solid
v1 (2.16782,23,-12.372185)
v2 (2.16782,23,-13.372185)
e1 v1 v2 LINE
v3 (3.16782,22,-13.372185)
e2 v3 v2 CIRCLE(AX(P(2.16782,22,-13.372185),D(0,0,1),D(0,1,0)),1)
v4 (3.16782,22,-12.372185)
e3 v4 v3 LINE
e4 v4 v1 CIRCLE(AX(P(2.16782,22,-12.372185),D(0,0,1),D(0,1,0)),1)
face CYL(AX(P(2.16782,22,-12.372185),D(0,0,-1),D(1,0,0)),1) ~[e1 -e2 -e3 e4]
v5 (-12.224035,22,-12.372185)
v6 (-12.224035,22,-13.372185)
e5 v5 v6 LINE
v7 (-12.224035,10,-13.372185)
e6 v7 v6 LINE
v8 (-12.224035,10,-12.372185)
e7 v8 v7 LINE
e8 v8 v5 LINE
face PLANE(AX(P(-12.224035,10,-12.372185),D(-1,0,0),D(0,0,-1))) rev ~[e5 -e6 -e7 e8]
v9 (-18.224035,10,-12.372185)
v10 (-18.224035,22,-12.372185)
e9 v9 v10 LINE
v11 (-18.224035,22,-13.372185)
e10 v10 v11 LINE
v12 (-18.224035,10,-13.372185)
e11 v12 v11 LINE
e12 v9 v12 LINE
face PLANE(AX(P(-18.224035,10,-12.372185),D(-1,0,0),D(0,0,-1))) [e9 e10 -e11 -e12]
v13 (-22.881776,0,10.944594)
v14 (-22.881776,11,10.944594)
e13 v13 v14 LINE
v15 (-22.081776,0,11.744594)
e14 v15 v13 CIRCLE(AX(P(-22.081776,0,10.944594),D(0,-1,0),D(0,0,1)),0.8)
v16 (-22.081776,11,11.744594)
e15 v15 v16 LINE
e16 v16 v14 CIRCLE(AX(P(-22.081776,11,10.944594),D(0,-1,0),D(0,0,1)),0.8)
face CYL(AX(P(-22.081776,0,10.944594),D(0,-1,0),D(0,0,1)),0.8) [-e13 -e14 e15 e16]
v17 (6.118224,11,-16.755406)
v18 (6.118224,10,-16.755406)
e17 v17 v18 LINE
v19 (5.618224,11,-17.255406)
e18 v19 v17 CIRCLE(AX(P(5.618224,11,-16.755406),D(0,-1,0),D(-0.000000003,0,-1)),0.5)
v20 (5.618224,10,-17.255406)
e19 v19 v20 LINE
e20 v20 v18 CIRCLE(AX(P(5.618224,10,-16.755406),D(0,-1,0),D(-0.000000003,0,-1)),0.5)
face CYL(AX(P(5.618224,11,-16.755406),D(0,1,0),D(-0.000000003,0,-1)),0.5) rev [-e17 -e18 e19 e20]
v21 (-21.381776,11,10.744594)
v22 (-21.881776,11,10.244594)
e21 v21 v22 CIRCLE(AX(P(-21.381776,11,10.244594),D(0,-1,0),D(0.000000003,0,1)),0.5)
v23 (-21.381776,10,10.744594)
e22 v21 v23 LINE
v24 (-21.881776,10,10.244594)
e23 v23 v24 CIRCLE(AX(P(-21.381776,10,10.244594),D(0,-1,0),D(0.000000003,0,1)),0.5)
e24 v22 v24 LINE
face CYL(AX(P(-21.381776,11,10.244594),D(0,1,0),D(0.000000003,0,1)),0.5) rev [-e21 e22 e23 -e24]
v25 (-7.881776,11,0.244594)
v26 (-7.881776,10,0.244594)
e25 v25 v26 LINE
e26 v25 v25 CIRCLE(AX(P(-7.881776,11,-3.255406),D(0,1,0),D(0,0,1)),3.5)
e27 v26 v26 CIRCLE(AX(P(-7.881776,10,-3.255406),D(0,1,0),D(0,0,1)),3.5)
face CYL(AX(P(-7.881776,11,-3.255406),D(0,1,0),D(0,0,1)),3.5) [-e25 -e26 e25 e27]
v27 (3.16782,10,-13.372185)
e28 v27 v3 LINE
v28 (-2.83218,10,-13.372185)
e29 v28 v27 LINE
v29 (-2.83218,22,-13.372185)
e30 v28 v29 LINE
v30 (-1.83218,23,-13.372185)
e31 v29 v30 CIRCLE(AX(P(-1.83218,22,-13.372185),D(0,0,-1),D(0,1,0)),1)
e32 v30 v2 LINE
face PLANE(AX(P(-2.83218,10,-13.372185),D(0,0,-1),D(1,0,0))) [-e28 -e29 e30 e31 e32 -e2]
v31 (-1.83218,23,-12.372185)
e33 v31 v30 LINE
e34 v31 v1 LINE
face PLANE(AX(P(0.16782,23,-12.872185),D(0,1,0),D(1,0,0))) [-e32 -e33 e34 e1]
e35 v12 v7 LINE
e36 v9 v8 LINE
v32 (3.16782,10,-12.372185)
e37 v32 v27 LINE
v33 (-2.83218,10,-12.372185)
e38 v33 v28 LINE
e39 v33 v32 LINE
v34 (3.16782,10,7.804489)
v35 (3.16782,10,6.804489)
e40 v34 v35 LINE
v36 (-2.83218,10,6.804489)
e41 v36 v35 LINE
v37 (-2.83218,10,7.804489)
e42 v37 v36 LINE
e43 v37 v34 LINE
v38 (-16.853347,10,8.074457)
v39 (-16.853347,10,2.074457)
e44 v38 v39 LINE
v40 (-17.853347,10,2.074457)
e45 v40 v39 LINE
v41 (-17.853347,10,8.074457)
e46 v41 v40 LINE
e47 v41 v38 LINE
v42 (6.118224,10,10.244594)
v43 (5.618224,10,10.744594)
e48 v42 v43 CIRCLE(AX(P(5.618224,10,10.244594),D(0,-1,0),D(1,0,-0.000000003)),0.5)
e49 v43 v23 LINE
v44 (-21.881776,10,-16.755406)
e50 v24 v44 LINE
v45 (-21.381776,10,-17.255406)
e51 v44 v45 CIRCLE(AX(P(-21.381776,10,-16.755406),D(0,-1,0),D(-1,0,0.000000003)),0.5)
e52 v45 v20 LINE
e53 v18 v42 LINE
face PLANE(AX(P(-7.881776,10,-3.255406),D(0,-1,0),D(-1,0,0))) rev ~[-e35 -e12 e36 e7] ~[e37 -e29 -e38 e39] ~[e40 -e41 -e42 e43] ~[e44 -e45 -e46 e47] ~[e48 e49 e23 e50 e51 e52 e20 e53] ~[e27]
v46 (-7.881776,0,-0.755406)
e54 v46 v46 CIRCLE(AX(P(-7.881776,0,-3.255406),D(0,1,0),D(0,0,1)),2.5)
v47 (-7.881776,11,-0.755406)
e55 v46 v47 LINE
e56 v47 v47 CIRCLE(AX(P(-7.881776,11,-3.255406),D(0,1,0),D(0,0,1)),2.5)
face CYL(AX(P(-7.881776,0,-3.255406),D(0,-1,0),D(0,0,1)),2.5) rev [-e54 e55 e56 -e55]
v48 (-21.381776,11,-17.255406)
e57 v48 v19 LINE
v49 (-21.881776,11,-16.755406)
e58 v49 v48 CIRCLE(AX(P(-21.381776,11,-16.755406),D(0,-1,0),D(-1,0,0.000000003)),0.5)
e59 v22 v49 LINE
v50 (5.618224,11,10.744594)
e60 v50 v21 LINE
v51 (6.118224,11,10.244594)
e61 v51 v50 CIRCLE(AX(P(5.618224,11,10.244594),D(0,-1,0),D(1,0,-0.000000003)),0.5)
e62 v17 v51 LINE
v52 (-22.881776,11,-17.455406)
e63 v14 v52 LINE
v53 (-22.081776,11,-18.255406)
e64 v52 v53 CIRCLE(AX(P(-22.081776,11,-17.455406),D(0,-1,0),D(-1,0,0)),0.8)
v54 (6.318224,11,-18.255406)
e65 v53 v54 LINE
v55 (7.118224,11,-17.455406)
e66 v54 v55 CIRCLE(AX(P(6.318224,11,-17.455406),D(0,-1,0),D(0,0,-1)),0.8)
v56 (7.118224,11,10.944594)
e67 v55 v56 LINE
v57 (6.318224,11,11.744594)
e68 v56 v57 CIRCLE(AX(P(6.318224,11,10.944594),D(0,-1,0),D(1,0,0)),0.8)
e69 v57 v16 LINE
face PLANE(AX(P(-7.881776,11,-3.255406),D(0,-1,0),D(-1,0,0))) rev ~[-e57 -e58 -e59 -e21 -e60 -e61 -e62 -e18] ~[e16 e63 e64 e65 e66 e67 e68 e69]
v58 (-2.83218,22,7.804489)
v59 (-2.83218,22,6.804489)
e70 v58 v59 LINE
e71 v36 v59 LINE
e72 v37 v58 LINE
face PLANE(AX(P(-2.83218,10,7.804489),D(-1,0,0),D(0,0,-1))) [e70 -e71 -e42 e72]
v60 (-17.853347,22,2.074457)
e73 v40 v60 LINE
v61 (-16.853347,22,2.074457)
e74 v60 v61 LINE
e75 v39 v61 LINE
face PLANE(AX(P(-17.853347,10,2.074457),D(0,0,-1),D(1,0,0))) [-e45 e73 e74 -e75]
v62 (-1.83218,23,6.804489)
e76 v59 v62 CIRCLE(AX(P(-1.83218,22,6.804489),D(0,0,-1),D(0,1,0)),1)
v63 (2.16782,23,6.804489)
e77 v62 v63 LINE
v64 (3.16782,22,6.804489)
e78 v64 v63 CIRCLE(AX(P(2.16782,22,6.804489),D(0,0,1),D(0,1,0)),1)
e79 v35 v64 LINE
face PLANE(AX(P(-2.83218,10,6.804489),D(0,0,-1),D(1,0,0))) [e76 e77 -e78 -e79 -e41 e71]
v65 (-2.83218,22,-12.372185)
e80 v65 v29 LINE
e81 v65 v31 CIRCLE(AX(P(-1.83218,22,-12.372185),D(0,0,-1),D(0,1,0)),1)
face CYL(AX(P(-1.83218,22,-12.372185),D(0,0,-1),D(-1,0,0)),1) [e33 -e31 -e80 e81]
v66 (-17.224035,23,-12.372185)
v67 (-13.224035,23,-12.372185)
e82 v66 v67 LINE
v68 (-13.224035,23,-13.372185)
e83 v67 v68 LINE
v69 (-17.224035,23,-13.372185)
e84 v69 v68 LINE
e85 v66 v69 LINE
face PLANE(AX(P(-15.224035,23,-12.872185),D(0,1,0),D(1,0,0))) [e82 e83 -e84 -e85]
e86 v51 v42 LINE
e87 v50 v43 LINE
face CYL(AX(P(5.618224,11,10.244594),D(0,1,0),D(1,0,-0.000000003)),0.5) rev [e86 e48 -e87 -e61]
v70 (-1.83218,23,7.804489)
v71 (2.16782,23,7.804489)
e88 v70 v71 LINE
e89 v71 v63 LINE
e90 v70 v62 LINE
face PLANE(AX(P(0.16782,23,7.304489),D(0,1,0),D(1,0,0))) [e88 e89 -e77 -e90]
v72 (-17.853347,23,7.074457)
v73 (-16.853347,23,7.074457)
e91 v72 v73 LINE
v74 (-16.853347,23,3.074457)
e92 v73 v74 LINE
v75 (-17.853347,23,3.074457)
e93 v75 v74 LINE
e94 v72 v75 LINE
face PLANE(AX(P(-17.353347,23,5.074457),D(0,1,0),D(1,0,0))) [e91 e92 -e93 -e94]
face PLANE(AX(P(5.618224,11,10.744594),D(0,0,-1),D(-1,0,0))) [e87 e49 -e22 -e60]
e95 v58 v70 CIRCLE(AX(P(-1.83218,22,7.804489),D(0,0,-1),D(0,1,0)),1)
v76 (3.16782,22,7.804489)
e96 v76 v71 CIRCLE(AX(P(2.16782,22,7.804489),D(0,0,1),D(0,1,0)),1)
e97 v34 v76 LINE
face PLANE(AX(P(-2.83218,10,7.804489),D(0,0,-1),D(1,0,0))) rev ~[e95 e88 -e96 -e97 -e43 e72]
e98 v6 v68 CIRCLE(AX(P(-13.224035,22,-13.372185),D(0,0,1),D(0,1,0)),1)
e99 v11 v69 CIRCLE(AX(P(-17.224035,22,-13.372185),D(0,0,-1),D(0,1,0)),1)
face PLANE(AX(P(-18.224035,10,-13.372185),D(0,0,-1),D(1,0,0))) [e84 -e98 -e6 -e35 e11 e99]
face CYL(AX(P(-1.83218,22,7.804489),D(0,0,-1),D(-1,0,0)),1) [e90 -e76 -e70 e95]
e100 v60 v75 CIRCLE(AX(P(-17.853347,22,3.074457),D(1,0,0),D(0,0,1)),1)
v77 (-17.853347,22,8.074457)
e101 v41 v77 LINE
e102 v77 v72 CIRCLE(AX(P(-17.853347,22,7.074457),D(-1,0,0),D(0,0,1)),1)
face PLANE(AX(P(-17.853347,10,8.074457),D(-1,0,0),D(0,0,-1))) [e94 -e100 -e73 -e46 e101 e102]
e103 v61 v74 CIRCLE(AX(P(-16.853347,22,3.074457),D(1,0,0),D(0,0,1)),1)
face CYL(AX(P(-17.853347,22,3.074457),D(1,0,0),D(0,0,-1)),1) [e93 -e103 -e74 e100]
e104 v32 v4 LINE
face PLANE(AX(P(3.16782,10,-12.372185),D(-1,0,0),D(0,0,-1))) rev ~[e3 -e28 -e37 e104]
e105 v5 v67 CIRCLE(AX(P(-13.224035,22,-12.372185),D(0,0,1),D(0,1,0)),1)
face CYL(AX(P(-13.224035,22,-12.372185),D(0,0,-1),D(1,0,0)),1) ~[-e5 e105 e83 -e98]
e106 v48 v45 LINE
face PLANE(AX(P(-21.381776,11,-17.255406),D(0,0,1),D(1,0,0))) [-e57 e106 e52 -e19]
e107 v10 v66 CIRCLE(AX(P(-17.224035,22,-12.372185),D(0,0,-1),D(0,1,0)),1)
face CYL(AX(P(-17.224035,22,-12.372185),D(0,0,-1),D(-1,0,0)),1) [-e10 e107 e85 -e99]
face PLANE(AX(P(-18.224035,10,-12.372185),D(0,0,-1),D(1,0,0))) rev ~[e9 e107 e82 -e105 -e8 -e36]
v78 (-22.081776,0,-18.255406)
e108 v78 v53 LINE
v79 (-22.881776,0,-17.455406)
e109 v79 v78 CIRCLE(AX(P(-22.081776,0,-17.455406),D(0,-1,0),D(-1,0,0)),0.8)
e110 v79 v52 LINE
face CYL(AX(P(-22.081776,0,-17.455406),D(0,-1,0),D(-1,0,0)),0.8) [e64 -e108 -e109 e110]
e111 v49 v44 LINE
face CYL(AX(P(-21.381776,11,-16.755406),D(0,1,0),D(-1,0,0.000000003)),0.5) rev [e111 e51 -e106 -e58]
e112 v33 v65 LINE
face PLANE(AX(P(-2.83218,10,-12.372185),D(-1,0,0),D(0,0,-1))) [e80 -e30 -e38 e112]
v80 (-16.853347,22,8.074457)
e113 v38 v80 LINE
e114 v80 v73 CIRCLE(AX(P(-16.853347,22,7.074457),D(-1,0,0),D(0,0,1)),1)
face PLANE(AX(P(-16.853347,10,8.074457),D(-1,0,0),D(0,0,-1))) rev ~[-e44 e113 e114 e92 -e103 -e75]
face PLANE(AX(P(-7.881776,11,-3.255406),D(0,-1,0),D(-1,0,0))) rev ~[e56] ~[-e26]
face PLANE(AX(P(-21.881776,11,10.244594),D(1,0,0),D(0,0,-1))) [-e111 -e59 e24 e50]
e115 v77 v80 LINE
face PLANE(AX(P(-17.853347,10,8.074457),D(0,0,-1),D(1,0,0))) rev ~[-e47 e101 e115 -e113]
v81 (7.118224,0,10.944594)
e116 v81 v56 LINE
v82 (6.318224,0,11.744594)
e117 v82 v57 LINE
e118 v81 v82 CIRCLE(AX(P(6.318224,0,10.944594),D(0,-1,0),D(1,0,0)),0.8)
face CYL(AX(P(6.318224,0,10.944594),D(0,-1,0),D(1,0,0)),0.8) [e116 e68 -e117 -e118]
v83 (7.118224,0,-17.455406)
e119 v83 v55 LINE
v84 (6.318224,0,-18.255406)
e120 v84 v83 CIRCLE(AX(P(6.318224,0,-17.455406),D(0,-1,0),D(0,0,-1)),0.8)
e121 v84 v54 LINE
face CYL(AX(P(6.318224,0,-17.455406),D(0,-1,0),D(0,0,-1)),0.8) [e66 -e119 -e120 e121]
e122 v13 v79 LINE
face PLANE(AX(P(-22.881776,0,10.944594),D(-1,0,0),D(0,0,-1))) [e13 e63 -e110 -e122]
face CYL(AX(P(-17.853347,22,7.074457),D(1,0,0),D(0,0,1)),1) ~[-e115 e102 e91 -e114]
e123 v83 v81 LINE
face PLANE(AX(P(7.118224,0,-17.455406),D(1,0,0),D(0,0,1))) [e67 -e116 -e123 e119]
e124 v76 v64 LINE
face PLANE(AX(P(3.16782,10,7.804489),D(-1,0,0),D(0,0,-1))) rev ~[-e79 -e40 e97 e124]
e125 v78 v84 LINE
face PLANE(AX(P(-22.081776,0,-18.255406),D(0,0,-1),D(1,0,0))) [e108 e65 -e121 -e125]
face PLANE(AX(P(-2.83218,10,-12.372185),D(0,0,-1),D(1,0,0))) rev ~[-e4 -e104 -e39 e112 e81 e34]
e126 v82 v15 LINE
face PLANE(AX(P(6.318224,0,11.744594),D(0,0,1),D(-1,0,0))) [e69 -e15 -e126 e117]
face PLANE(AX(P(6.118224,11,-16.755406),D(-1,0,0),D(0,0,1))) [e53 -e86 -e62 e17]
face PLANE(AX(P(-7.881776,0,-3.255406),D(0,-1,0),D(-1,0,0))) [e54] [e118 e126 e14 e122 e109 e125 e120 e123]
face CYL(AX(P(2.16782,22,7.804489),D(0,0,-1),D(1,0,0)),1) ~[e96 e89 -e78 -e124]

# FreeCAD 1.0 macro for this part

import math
import FreeCAD as App
import Part
import Sketcher
from FreeCAD import Vector


def edges_at(feature, points):
    """Names of the edges that pass closest to the given points."""
    edges = feature.Shape.Edges
    near = lambda p: min(range(len(edges)), key=lambda i: edges[i].distToShape(Part.Vertex(*p))[0])
    return sorted({f"Edge{near(p) + 1}" for p in points})


def add_polygon(sketch, points):
    """Adds a closed chain of lines whose ends are joined by coincident constraints."""
    first, n = sketch.GeometryCount, len(points)
    for a, b in zip(points, points[1:] + points[:1]):
        sketch.addGeometry(Part.LineSegment(App.Vector(*a, 0), App.Vector(*b, 0)), False)
    for i in range(n):
        sketch.addConstraint(Sketcher.Constraint("Coincident", first + i, 2, first + (i + 1) % n, 1))

doc = App.newDocument("Part")
body = doc.addObject("PartDesign::Body", "Body")

# Sketch on XZ plane
sketch1 = body.newObject("Sketcher::SketchObject", "Sketch")
sketch1.AttachmentSupport = (doc.getObject("XZ_Plane"), [""])
sketch1.MapMode = "FlatFace"
sketch1.addGeometry([
    Part.LineSegment(Vector(6.3, -18.3, 0), Vector(-22.1, -18.3, 0)),  # 0
    Part.ArcOfCircle(Part.Circle(Vector(-22.1, -17.5, 0), Vector(0, 0, 1), 0.8), math.radians(180), math.radians(270)),  # 1
    Part.LineSegment(Vector(-22.9, -17.5, 0), Vector(-22.9, 10.9, 0)),  # 2
    Part.ArcOfCircle(Part.Circle(Vector(-22.1, 10.9, 0), Vector(0, 0, 1), 0.8), math.radians(90), math.radians(180)),  # 3
    Part.LineSegment(Vector(-22.1, 11.7, 0), Vector(6.3, 11.7, 0)),  # 4
    Part.ArcOfCircle(Part.Circle(Vector(6.3, 10.9, 0), Vector(0, 0, 1), 0.8), math.radians(0), math.radians(90)),  # 5
    Part.LineSegment(Vector(7.1, 10.9, 0), Vector(7.1, -17.5, 0)),  # 6
    Part.ArcOfCircle(Part.Circle(Vector(6.3, -17.5, 0), Vector(0, 0, 1), 0.8), math.radians(-90), math.radians(0)),  # 7
    Part.Circle(Vector(-7.9, -3.3, 0), Vector(0, 0, 1), 2.5),  # 8
], False)
sketch1.addConstraint([
    Sketcher.Constraint("Tangent", 0, 2, 1, 2),
    Sketcher.Constraint("Tangent", 1, 1, 2, 1),
    Sketcher.Constraint("Tangent", 2, 2, 3, 2),
    Sketcher.Constraint("Tangent", 3, 1, 4, 1),
    Sketcher.Constraint("Tangent", 4, 2, 5, 2),
    Sketcher.Constraint("Tangent", 5, 1, 6, 1),
    Sketcher.Constraint("Tangent", 6, 2, 7, 2),
    Sketcher.Constraint("Tangent", 7, 1, 0, 1),
    Sketcher.Constraint("Horizontal", 0),
    Sketcher.Constraint("Vertical", 2),
    Sketcher.Constraint("Horizontal", 4),
    Sketcher.Constraint("Vertical", 6),
    Sketcher.Constraint("Equal", 1, 3),
    Sketcher.Constraint("Equal", 3, 5),
    Sketcher.Constraint("Equal", 5, 7),
    Sketcher.Constraint("Equal", 4, 2),
    Sketcher.Constraint("Diameter", 8, 5.0),
    Sketcher.Constraint("Radius", 1, 0.8),
    Sketcher.Constraint("DistanceX", 0, 2, 0, 1, 28.4),
    Sketcher.Constraint("DistanceY", 0, 2, 8, 3, 15.0),
    Sketcher.Constraint("DistanceX", 1, 1, 8, 3, 15.0),
    Sketcher.Constraint("DistanceX", 1, 3, -1, 1, 22.081776),
    Sketcher.Constraint("DistanceY", 1, 3, -1, 1, 17.455406),
])
pad1 = body.newObject("PartDesign::Pad", "Pad")
pad1.Profile = sketch1
pad1.Length = 11
pad1.Reversed = True

# Sketch on XZ plane
sketch2 = body.newObject("Sketcher::SketchObject", "Sketch001")
sketch2.AttachmentSupport = (doc.getObject("XZ_Plane"), [""])
sketch2.MapMode = "FlatFace"
sketch2.AttachmentOffset = App.Placement(Vector(0, 0, -11), App.Rotation())
sketch2.addGeometry([
    Part.LineSegment(Vector(5.62, -17.26, 0), Vector(-21.38, -17.26, 0)),  # 0
    Part.ArcOfCircle(Part.Circle(Vector(-21.38, -16.76, 0), Vector(0, 0, 1), 0.5), math.radians(180), math.radians(270)),  # 1
    Part.LineSegment(Vector(-21.88, -16.76, 0), Vector(-21.88, 10.24, 0)),  # 2
    Part.ArcOfCircle(Part.Circle(Vector(-21.38, 10.24, 0), Vector(0, 0, 1), 0.5), math.radians(90), math.radians(180)),  # 3
    Part.LineSegment(Vector(-21.38, 10.74, 0), Vector(5.62, 10.74, 0)),  # 4
    Part.ArcOfCircle(Part.Circle(Vector(5.62, 10.24, 0), Vector(0, 0, 1), 0.5), math.radians(0), math.radians(90)),  # 5
    Part.LineSegment(Vector(6.12, 10.24, 0), Vector(6.12, -16.76, 0)),  # 6
    Part.ArcOfCircle(Part.Circle(Vector(5.62, -16.76, 0), Vector(0, 0, 1), 0.5), math.radians(-90), math.radians(0)),  # 7
    Part.Circle(Vector(-7.88, -3.26, 0), Vector(0, 0, 1), 3.5),  # 8
], False)
sketch2.addConstraint([
    Sketcher.Constraint("Tangent", 0, 2, 1, 2),
    Sketcher.Constraint("Tangent", 1, 1, 2, 1),
    Sketcher.Constraint("Tangent", 2, 2, 3, 2),
    Sketcher.Constraint("Tangent", 3, 1, 4, 1),
    Sketcher.Constraint("Tangent", 4, 2, 5, 2),
    Sketcher.Constraint("Tangent", 5, 1, 6, 1),
    Sketcher.Constraint("Tangent", 6, 2, 7, 2),
    Sketcher.Constraint("Tangent", 7, 1, 0, 1),
    Sketcher.Constraint("Horizontal", 0),
    Sketcher.Constraint("Vertical", 2),
    Sketcher.Constraint("Horizontal", 4),
    Sketcher.Constraint("Vertical", 6),
    Sketcher.Constraint("Equal", 1, 3),
    Sketcher.Constraint("Equal", 3, 5),
    Sketcher.Constraint("Equal", 5, 7),
    Sketcher.Constraint("Equal", 4, 2),
    Sketcher.Constraint("Diameter", 8, 7.0),
    Sketcher.Constraint("Radius", 1, 0.5),
    Sketcher.Constraint("DistanceX", 0, 2, 0, 1, 27.0),
    Sketcher.Constraint("DistanceY", 0, 2, 8, 3, 14.0),
    Sketcher.Constraint("DistanceX", 1, 1, 8, 3, 14.0),
    Sketcher.Constraint("DistanceX", 1, 3, -1, 1, 21.381776),
    Sketcher.Constraint("DistanceY", 1, 3, -1, 1, 16.755406),
])
pocket1 = body.newObject("PartDesign::Pocket", "Pocket")
pocket1.Profile = sketch2
pocket1.Length = 1
pocket1.Reversed = True

# Sketch on XZ plane
sketch3 = body.newObject("Sketcher::SketchObject", "Sketch002")
sketch3.AttachmentSupport = (doc.getObject("XZ_Plane"), [""])
sketch3.MapMode = "FlatFace"
sketch3.AttachmentOffset = App.Placement(Vector(0, 0, -10), App.Rotation())
add_polygon(sketch3, [(-18.2, -13.4), (-18.2, -12.4), (-12.2, -12.4), (-12.2, -13.4)])  # lines 0-3
add_polygon(sketch3, [(-2.8, -13.4), (-2.8, -12.4), (3.2, -12.4), (3.2, -13.4)])  # lines 4-7
add_polygon(sketch3, [(-2.8, 6.8), (-2.8, 7.8), (3.2, 7.8), (3.2, 6.8)])  # lines 8-11
add_polygon(sketch3, [(-17.9, 2.1), (-17.9, 8.1), (-16.9, 8.1), (-16.9, 2.1)])  # lines 12-15
sketch3.addConstraint([
    Sketcher.Constraint("Vertical", 0),
    Sketcher.Constraint("Horizontal", 1),
    Sketcher.Constraint("Vertical", 2),
    Sketcher.Constraint("Horizontal", 3),
    Sketcher.Constraint("Vertical", 4),
    Sketcher.Constraint("Horizontal", 5),
    Sketcher.Constraint("Vertical", 6),
    Sketcher.Constraint("Horizontal", 7),
    Sketcher.Constraint("Vertical", 8),
    Sketcher.Constraint("Horizontal", 9),
    Sketcher.Constraint("Vertical", 10),
    Sketcher.Constraint("Horizontal", 11),
    Sketcher.Constraint("Vertical", 12),
    Sketcher.Constraint("Horizontal", 13),
    Sketcher.Constraint("Vertical", 14),
    Sketcher.Constraint("Horizontal", 15),
    Sketcher.Constraint("Horizontal", 1, 2, 4, 2),
    Sketcher.Constraint("Horizontal", 3, 2, 6, 2),
    Sketcher.Constraint("Vertical", 7, 2, 8, 2),
    Sketcher.Constraint("Vertical", 6, 2, 9, 2),
    Sketcher.Constraint("Equal", 3, 5),
    Sketcher.Constraint("Equal", 15, 0),
    Sketcher.Constraint("Equal", 6, 8),
    Sketcher.Constraint("Equal", 11, 12),
    Sketcher.Constraint("DistanceX", 1, 1, 1, 2, 6.0),
    Sketcher.Constraint("DistanceX", 13, 1, 13, 2, 1.0),
    Sketcher.Constraint("DistanceX", 4, 2, -1, 1, 2.83218),
    Sketcher.Constraint("DistanceY", -1, 1, 8, 2, 7.804489),
    Sketcher.Constraint("DistanceY", 8, 2, 12, 2, 0.269968),
    Sketcher.Constraint("DistanceX", 0, 2, 12, 2, 0.370688),
    Sketcher.Constraint("DistanceX", 0, 2, -1, 1, 18.224035),
    Sketcher.Constraint("DistanceY", 0, 2, -1, 1, 12.372185),
])
pad2 = body.newObject("PartDesign::Pad", "Pad001")
pad2.Profile = sketch3
pad2.Length = 13
pad2.Reversed = True
doc.recompute()

fillet = body.newObject("PartDesign::Fillet", "Fillet")
fillet.Base = (pad2, edges_at(pad2, [
    (-18.224, 23, -12.872),
    (-12.224, 23, -12.872),
    (-2.832, 23, -12.872),
    (3.168, 23, -12.872),
    (-2.832, 23, 7.304),
    (3.168, 23, 7.304),
    (-17.353, 23, 8.074),
    (-17.353, 23, 2.074),
]))
fillet.Radius = 1

doc.recompute()
